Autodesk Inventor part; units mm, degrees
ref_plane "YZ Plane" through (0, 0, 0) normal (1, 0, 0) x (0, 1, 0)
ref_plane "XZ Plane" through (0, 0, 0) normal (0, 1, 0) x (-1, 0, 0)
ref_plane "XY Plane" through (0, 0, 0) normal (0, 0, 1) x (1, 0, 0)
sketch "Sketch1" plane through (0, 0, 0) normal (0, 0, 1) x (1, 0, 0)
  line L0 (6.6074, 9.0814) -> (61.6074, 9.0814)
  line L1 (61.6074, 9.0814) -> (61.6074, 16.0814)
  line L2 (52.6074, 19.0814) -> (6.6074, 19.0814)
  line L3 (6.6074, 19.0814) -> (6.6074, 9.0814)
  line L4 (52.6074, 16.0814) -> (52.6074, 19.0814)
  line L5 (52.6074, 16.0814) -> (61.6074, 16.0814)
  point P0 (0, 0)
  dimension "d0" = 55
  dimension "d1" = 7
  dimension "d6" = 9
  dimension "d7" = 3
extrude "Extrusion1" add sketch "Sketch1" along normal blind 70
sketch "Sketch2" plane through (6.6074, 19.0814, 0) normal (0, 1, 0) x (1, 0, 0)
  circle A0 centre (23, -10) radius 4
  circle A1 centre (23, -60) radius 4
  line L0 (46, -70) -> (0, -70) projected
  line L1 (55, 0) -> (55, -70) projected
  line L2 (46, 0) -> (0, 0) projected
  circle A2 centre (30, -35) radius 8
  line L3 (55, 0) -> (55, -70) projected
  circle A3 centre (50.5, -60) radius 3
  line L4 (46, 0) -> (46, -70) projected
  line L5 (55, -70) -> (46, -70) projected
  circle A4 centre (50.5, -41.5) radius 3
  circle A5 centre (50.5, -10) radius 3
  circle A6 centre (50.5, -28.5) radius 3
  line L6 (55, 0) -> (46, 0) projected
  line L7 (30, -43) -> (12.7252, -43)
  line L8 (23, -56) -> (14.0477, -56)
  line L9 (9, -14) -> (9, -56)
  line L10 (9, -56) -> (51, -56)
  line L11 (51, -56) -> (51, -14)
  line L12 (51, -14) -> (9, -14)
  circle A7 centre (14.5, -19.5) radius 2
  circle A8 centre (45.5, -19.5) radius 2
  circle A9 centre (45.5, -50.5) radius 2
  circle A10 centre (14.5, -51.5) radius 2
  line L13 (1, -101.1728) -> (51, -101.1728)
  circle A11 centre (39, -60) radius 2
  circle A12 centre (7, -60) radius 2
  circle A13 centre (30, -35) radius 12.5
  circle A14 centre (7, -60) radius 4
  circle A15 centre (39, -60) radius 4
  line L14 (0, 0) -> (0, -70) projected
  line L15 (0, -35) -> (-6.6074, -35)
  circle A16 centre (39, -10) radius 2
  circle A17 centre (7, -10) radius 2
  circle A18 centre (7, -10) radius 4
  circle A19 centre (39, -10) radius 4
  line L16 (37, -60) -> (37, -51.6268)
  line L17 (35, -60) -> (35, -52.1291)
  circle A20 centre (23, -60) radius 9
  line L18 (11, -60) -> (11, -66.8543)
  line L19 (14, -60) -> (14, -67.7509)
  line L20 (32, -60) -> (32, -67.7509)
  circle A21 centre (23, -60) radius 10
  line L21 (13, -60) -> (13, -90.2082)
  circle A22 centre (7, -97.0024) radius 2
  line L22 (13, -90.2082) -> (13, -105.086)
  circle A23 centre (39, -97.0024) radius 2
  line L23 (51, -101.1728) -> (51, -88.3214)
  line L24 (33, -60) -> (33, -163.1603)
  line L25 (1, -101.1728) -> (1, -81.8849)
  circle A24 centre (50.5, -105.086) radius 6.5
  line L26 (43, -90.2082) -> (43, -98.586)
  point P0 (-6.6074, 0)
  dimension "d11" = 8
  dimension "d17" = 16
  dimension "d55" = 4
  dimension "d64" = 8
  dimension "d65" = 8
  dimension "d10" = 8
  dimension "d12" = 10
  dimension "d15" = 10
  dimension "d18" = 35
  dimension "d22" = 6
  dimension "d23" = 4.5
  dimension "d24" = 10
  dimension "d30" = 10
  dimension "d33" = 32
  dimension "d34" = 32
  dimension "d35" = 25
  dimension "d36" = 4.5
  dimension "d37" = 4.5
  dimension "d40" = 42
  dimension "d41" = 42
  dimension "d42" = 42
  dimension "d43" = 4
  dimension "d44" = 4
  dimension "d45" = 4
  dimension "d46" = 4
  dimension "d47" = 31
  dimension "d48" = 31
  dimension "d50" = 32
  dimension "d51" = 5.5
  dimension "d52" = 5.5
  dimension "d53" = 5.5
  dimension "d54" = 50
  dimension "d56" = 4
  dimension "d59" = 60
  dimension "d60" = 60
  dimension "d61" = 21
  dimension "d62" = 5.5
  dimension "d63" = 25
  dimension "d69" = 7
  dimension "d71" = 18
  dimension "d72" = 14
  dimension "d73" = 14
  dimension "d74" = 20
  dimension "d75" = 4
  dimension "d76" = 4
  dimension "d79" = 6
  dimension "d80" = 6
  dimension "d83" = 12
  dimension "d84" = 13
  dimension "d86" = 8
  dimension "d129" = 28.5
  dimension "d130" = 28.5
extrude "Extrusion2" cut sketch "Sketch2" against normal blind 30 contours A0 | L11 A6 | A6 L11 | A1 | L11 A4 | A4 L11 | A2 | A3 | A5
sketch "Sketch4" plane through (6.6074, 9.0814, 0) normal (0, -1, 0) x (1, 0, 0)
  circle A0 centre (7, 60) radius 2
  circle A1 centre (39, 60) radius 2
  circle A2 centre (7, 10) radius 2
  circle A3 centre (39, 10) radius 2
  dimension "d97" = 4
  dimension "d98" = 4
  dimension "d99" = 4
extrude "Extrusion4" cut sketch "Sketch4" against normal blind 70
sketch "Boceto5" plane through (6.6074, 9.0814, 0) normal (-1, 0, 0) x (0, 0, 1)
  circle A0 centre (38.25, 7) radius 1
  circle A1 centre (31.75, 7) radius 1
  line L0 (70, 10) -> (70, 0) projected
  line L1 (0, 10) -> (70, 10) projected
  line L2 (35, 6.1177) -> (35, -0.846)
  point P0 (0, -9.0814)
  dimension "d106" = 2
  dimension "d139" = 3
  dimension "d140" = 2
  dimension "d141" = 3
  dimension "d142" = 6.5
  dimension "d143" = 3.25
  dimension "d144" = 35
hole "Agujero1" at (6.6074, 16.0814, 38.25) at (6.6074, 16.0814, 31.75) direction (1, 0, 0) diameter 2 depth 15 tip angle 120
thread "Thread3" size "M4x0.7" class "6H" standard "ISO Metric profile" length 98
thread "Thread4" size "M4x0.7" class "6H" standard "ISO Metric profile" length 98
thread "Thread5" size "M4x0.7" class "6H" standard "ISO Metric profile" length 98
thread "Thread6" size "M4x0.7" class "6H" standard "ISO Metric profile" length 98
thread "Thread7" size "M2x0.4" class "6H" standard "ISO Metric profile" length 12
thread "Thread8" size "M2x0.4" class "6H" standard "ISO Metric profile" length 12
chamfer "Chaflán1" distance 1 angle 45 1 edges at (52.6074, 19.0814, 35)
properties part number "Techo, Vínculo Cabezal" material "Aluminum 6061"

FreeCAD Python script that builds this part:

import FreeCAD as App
import Part
import Sketcher


def edges_at(feature, points):
    """Names of the edges that pass closest to the given points."""
    edges = feature.Shape.Edges
    near = lambda p: min(range(len(edges)), key=lambda i: edges[i].distToShape(Part.Vertex(*p))[0])
    return sorted({f"Edge{near(p) + 1}" for p in points})

doc = App.newDocument("Part")
body = doc.addObject("PartDesign::Body", "Body")

# Sketch on XY plane
sketch1 = body.newObject("Sketcher::SketchObject", "Sketch")
sketch1.AttachmentSupport = (doc.getObject("XY_Plane"), [""])
sketch1.MapMode = "FlatFace"
sketch1.addGeometry([
    Part.LineSegment(App.Vector(6.6, 19.1, 0), App.Vector(6.6, 9.1, 0)),  # 0
    Part.LineSegment(App.Vector(6.6, 9.1, 0), App.Vector(61.6, 9.1, 0)),  # 1
    Part.LineSegment(App.Vector(61.6, 9.1, 0), App.Vector(61.6, 16.1, 0)),  # 2
    Part.LineSegment(App.Vector(61.6, 16.1, 0), App.Vector(52.6, 16.1, 0)),  # 3
    Part.LineSegment(App.Vector(52.6, 16.1, 0), App.Vector(52.6, 19.1, 0)),  # 4
    Part.LineSegment(App.Vector(52.6, 19.1, 0), App.Vector(6.6, 19.1, 0)),  # 5
], False)
sketch1.addConstraint([
    Sketcher.Constraint("Coincident", 0, 2, 1, 1),
    Sketcher.Constraint("Coincident", 1, 2, 2, 1),
    Sketcher.Constraint("Coincident", 2, 2, 3, 1),
    Sketcher.Constraint("Coincident", 3, 2, 4, 1),
    Sketcher.Constraint("Coincident", 4, 2, 5, 1),
    Sketcher.Constraint("Coincident", 5, 2, 0, 1),
    Sketcher.Constraint("Vertical", 0),
    Sketcher.Constraint("Horizontal", 1),
    Sketcher.Constraint("Vertical", 2),
    Sketcher.Constraint("Horizontal", 3),
    Sketcher.Constraint("Vertical", 4),
    Sketcher.Constraint("Horizontal", 5),
    Sketcher.Constraint("DistanceX", 1, 1, 1, 2, 55.0),
    Sketcher.Constraint("DistanceX", 3, 2, 3, 1, 9.0),
    Sketcher.Constraint("DistanceY", 2, 1, 2, 2, 7.0),
    Sketcher.Constraint("DistanceY", 4, 1, 4, 2, 3.0),
    Sketcher.Constraint("DistanceX", -1, 1, 0, 2, 6.6074),
    Sketcher.Constraint("DistanceY", -1, 1, 0, 2, 9.0814),
])
pad1 = body.newObject("PartDesign::Pad", "Pad")
pad1.Profile = sketch1
pad1.Length = 70

# Sketch on XZ plane
sketch2 = body.newObject("Sketcher::SketchObject", "Sketch001")
sketch2.AttachmentSupport = (doc.getObject("XZ_Plane"), [""])
sketch2.MapMode = "FlatFace"
sketch2.AttachmentOffset = App.Placement(App.Vector(0, 0, -19.0814), App.Rotation())
sketch2.addGeometry([
    Part.Circle(App.Vector(29.6, 10, 0), App.Vector(0, 0, 1), 4),  # 0
    Part.Circle(App.Vector(57.1, 28.5, 0), App.Vector(0, 0, 1), 3),  # 1
    Part.Circle(App.Vector(29.6, 60, 0), App.Vector(0, 0, 1), 4),  # 2
    Part.Circle(App.Vector(57.1, 41.5, 0), App.Vector(0, 0, 1), 3),  # 3
    Part.Circle(App.Vector(36.6, 35, 0), App.Vector(0, 0, 1), 8),  # 4
    Part.Circle(App.Vector(57.1, 60, 0), App.Vector(0, 0, 1), 3),  # 5
    Part.Circle(App.Vector(57.1, 10, 0), App.Vector(0, 0, 1), 3),  # 6
], False)
sketch2.addConstraint([
    Sketcher.Constraint("Equal", 0, 2),
    Sketcher.Constraint("Equal", 1, 3),
    Sketcher.Constraint("Equal", 3, 5),
    Sketcher.Constraint("Equal", 5, 6),
    Sketcher.Constraint("Horizontal", 2, 3, 5, 3),
    Sketcher.Constraint("Horizontal", 0, 3, 6, 3),
    Sketcher.Constraint("Vertical", 0, 3, 2, 3),
    Sketcher.Constraint("Vertical", 1, 3, 3, 3),
    Sketcher.Constraint("Vertical", 3, 3, 5, 3),
    Sketcher.Constraint("Vertical", 5, 3, 6, 3),
    Sketcher.Constraint("Diameter", 0, 8.0),
    Sketcher.Constraint("Diameter", 1, 6.0),
    Sketcher.Constraint("Diameter", 4, 16.0),
    Sketcher.Constraint("DistanceY", -1, 1, 0, 3, 10.0),
    Sketcher.Constraint("DistanceY", -1, 1, 2, 3, 60.0),
    Sketcher.Constraint("DistanceY", -1, 1, 4, 3, 35.0),
    Sketcher.Constraint("DistanceY", 1, 3, 3, 3, 13.0),
    Sketcher.Constraint("DistanceX", 0, 3, 4, 3, 7.0),
    Sketcher.Constraint("DistanceY", -1, 1, 1, 3, 28.5),
    Sketcher.Constraint("DistanceX", 0, 3, 1, 3, 27.5),
    Sketcher.Constraint("DistanceX", -1, 1, 0, 3, 29.6074),
])
pocket1 = body.newObject("PartDesign::Pocket", "Pocket")
pocket1.Profile = sketch2
pocket1.Length = 30
pocket1.Reversed = True

# Sketch on XZ plane
sketch3 = body.newObject("Sketcher::SketchObject", "Sketch002")
sketch3.AttachmentSupport = (doc.getObject("XZ_Plane"), [""])
sketch3.MapMode = "FlatFace"
sketch3.AttachmentOffset = App.Placement(App.Vector(0, 0, -9.0814), App.Rotation())
sketch3.addGeometry([
    Part.Circle(App.Vector(13.6, 60, 0), App.Vector(0, 0, 1), 2),
    Part.Circle(App.Vector(45.6, 60, 0), App.Vector(0, 0, 1), 2),
    Part.Circle(App.Vector(13.6, 10, 0), App.Vector(0, 0, 1), 2),
    Part.Circle(App.Vector(45.6, 10, 0), App.Vector(0, 0, 1), 2),
], False)
sketch3.addConstraint([
    Sketcher.Constraint("Equal", 0, 1),
    Sketcher.Constraint("Equal", 1, 2),
    Sketcher.Constraint("Equal", 2, 3),
    Sketcher.Constraint("Horizontal", 0, 3, 1, 3),
    Sketcher.Constraint("Horizontal", 2, 3, 3, 3),
    Sketcher.Constraint("Vertical", 0, 3, 2, 3),
    Sketcher.Constraint("Vertical", 1, 3, 3, 3),
    Sketcher.Constraint("Diameter", 0, 4.0),
    Sketcher.Constraint("DistanceY", -1, 1, 0, 3, 60.0),
    Sketcher.Constraint("DistanceY", -1, 1, 2, 3, 10.0),
    Sketcher.Constraint("DistanceX", 0, 3, 1, 3, 32.0),
    Sketcher.Constraint("DistanceX", -1, 1, 0, 3, 13.6074),
])
pocket2 = body.newObject("PartDesign::Pocket", "Pocket001")
pocket2.Profile = sketch3
pocket2.Length = 70

# Sketch on YZ plane
sketch4 = body.newObject("Sketcher::SketchObject", "Sketch003")
sketch4.AttachmentSupport = (doc.getObject("YZ_Plane"), [""])
sketch4.MapMode = "FlatFace"
sketch4.AttachmentOffset = App.Placement(App.Vector(0, 0, 6.6074), App.Rotation())
sketch4.addGeometry([
    Part.Circle(App.Vector(16.1, 38.2, 0), App.Vector(0, 0, 1), 1),
    Part.Circle(App.Vector(16.1, 31.8, 0), App.Vector(0, 0, 1), 1),
], False)
sketch4.addConstraint([
    Sketcher.Constraint("Equal", 0, 1),
    Sketcher.Constraint("Vertical", 0, 3, 1, 3),
    Sketcher.Constraint("Diameter", 0, 2.0),
    Sketcher.Constraint("DistanceY", 1, 3, 0, 3, 6.5),
    Sketcher.Constraint("DistanceY", -1, 1, 0, 3, 38.25),
    Sketcher.Constraint("DistanceX", -1, 1, 0, 3, 16.0814),
])
doc.recompute()
hole = body.newObject("PartDesign::Hole", "Hole")
hole.Profile = sketch4
hole.ThreadType = "None"
hole.Diameter = 2
hole.DepthType = "Dimension"
hole.Depth = 15
hole.DrillPoint = "Angled"
hole.DrillPointAngle = 120
hole.Reversed = True
doc.recompute()

chamfer = body.newObject("PartDesign::Chamfer", "Chamfer")
chamfer.Base = (hole, edges_at(hole, [(52.607, 19.081, 35)]))
chamfer.Size = 1

doc.recompute()
